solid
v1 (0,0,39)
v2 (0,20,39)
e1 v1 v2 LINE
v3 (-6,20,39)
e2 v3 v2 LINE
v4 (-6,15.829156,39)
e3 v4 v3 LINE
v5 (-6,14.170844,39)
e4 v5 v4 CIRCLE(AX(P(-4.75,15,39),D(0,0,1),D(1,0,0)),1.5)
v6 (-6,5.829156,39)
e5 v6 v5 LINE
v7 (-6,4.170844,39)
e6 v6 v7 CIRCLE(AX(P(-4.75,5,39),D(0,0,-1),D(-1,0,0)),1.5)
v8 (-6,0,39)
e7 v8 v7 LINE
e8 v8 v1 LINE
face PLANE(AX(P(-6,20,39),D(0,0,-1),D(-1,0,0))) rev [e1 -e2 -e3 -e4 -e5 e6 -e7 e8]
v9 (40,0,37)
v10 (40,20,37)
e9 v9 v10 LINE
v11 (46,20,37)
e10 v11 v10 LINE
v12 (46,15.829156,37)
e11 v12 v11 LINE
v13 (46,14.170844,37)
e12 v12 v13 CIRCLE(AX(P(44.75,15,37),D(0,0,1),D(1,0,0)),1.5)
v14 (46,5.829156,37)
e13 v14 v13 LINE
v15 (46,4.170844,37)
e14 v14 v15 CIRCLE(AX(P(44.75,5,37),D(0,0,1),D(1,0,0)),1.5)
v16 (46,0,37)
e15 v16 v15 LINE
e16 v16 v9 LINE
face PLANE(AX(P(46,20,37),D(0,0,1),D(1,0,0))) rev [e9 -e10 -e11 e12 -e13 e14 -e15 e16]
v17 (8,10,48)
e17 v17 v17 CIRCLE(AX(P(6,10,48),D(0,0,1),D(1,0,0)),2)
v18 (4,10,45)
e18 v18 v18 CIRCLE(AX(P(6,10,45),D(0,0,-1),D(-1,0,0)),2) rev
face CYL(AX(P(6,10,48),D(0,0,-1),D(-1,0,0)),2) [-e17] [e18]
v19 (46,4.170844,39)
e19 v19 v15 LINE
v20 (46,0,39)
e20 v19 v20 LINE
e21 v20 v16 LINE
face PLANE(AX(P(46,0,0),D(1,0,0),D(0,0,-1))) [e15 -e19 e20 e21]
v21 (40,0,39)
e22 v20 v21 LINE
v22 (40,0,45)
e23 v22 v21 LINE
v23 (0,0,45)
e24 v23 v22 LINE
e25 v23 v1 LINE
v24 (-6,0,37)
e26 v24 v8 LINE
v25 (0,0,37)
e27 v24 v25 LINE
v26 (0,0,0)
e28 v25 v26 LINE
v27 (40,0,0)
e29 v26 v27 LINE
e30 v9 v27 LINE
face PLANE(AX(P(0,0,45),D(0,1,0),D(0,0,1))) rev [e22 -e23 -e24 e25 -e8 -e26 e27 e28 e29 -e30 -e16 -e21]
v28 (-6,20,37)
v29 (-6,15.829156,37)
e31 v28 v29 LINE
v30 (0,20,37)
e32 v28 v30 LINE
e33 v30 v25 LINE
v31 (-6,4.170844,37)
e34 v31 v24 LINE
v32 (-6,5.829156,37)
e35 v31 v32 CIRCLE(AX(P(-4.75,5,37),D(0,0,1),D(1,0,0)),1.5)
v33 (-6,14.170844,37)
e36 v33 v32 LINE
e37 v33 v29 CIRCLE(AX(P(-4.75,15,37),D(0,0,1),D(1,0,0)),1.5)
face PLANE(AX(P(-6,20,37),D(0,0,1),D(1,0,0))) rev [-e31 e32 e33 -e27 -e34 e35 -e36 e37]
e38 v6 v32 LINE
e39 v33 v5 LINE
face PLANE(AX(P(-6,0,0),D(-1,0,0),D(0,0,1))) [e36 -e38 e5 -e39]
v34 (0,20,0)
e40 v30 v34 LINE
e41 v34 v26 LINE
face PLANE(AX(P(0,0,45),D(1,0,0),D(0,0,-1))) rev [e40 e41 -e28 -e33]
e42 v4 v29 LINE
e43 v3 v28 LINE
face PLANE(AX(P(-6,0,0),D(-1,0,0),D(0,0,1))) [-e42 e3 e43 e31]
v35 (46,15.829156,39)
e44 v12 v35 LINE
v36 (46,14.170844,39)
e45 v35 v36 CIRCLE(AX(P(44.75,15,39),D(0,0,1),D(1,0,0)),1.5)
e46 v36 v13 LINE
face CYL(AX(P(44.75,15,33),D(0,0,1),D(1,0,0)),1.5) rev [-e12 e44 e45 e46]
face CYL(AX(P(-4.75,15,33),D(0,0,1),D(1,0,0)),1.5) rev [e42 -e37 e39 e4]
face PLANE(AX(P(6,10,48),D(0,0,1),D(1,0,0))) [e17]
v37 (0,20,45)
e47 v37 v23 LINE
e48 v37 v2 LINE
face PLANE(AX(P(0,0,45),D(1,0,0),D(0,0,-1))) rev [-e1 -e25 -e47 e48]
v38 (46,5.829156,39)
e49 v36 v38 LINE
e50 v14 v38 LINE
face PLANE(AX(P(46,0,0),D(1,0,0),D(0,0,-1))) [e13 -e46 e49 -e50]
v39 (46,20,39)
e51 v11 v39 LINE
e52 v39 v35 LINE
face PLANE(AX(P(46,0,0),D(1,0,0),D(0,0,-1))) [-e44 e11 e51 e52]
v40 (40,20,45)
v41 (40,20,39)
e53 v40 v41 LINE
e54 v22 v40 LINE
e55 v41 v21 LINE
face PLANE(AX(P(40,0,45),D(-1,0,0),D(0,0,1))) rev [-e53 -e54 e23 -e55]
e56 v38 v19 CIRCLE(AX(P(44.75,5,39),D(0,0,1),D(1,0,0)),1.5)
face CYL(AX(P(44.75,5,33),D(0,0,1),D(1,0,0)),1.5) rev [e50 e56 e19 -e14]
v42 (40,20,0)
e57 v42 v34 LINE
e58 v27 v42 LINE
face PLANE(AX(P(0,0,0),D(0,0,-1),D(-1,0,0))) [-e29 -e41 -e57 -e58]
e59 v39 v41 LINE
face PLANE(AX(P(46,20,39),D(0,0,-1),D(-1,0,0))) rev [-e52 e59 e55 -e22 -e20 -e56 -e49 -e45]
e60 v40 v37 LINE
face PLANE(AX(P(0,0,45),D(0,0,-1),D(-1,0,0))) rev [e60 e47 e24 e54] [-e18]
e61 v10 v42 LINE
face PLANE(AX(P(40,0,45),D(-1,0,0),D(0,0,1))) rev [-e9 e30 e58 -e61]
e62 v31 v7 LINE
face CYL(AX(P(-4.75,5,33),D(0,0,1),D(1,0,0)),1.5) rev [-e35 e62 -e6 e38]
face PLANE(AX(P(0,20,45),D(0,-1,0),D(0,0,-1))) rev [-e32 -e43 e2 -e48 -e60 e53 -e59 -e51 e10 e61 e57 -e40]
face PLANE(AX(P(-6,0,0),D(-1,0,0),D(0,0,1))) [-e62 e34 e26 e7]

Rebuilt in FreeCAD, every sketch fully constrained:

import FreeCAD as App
import Part
import Sketcher
Q = App.Units.Quantity

doc = App.newDocument("Part")
body = doc.addObject("PartDesign::Body", "Body")

sketch1 = doc.addObject("Sketcher::SketchObject", "Sketch")
body.addObject(sketch1)
sketch1.AttachmentSupport = (doc.XY_Plane, [""])
sketch1.MapMode = "FlatFace"
sketch1.addGeometry([
    Part.LineSegment(App.Vector(0, 20, 0), App.Vector(0, 0, 0)),
    Part.LineSegment(App.Vector(0, 0, 0), App.Vector(40, 0, 0)),
    Part.LineSegment(App.Vector(40, 0, 0), App.Vector(40, 20, 0)),
    Part.LineSegment(App.Vector(40, 20, 0), App.Vector(0, 20, 0)),
], False)
sketch1.addConstraint([
    Sketcher.Constraint("Coincident", 0, 2, 1, 1),
    Sketcher.Constraint("Coincident", 1, 2, 2, 1),
    Sketcher.Constraint("Coincident", 2, 2, 3, 1),
    Sketcher.Constraint("Coincident", 3, 2, 0, 1),
    Sketcher.Constraint("Vertical", 0),
    Sketcher.Constraint("Horizontal", 1),
    Sketcher.Constraint("Vertical", 2),
    Sketcher.Constraint("Horizontal", 3),
    Sketcher.Constraint("Coincident", 0, 2, -1, 1),
    Sketcher.Constraint("DistanceX", 1, 1, 1, 2, Q("40 mm")),
    Sketcher.Constraint("DistanceY", 0, 2, 0, 1, Q("20 mm")),
])
pad1 = doc.addObject("PartDesign::Pad", "Pad")
body.addObject(pad1)
pad1.Profile = sketch1
pad1.Length = 45

sketch2 = doc.addObject("Sketcher::SketchObject", "Sketch001")
body.addObject(sketch2)
sketch2.AttachmentSupport = (doc.XY_Plane, [""])
sketch2.MapMode = "FlatFace"
sketch2.AttachmentOffset = App.Placement(App.Vector(0, 0, 45), App.Rotation())
sketch2.addGeometry(Part.Circle(App.Vector(6, 10, 0), App.Vector(0, 0, 1), 2), False)
sketch2.addConstraint([
    Sketcher.Constraint("Diameter", 0, Q("4 mm")),
    Sketcher.Constraint("DistanceX", -1, 1, 0, 3, Q("6 mm")),
    Sketcher.Constraint("DistanceY", -1, 1, 0, 3, Q("10 mm")),
])
pad2 = doc.addObject("PartDesign::Pad", "Pad001")
body.addObject(pad2)
pad2.Profile = sketch2
pad2.Length = 3

sketch3 = doc.addObject("Sketcher::SketchObject", "Sketch002")
body.addObject(sketch3)
sketch3.AttachmentSupport = (doc.YZ_Plane, [""])
sketch3.MapMode = "FlatFace"
sketch3.addGeometry([
    Part.LineSegment(App.Vector(20, 37, 0), App.Vector(0, 37, 0)),
    Part.LineSegment(App.Vector(0, 37, 0), App.Vector(0, 39, 0)),
    Part.LineSegment(App.Vector(0, 39, 0), App.Vector(20, 39, 0)),
    Part.LineSegment(App.Vector(20, 39, 0), App.Vector(20, 37, 0)),
], False)
sketch3.addConstraint([
    Sketcher.Constraint("Coincident", 0, 2, 1, 1),
    Sketcher.Constraint("Coincident", 1, 2, 2, 1),
    Sketcher.Constraint("Coincident", 2, 2, 3, 1),
    Sketcher.Constraint("Coincident", 3, 2, 0, 1),
    Sketcher.Constraint("Horizontal", 0),
    Sketcher.Constraint("Vertical", 1),
    Sketcher.Constraint("Horizontal", 2),
    Sketcher.Constraint("Vertical", 3),
    Sketcher.Constraint("PointOnObject", 0, 2, -2),
    Sketcher.Constraint("DistanceX", 0, 2, 0, 1, Q("20 mm")),
    Sketcher.Constraint("DistanceY", 1, 1, 1, 2, Q("2 mm")),
    Sketcher.Constraint("DistanceY", -1, 1, 0, 2, Q("37 mm")),
])
pad3 = doc.addObject("PartDesign::Pad", "Pad002")
body.addObject(pad3)
pad3.Profile = sketch3
pad3.Length = 6
pad3.Reversed = True

sketch4 = doc.addObject("Sketcher::SketchObject", "Sketch003")
body.addObject(sketch4)
sketch4.AttachmentSupport = (doc.YZ_Plane, [""])
sketch4.MapMode = "FlatFace"
sketch4.AttachmentOffset = App.Placement(App.Vector(0, 0, 40), App.Rotation())
sketch4.addGeometry([
    Part.LineSegment(App.Vector(20, 39, 0), App.Vector(0, 39, 0)),
    Part.LineSegment(App.Vector(0, 39, 0), App.Vector(0, 37, 0)),
    Part.LineSegment(App.Vector(0, 37, 0), App.Vector(20, 37, 0)),
    Part.LineSegment(App.Vector(20, 37, 0), App.Vector(20, 39, 0)),
], False)
sketch4.addConstraint([
    Sketcher.Constraint("Coincident", 0, 2, 1, 1),
    Sketcher.Constraint("Coincident", 1, 2, 2, 1),
    Sketcher.Constraint("Coincident", 2, 2, 3, 1),
    Sketcher.Constraint("Coincident", 3, 2, 0, 1),
    Sketcher.Constraint("Horizontal", 0),
    Sketcher.Constraint("Vertical", 1),
    Sketcher.Constraint("Horizontal", 2),
    Sketcher.Constraint("Vertical", 3),
    Sketcher.Constraint("PointOnObject", 0, 2, -2),
    Sketcher.Constraint("DistanceX", 0, 2, 0, 1, Q("20 mm")),
    Sketcher.Constraint("DistanceY", 1, 2, 1, 1, Q("2 mm")),
    Sketcher.Constraint("DistanceY", -1, 1, 0, 2, Q("39 mm")),
])
pad4 = doc.addObject("PartDesign::Pad", "Pad003")
body.addObject(pad4)
pad4.Profile = sketch4
pad4.Length = 6

sketch5 = doc.addObject("Sketcher::SketchObject", "Sketch004")
body.addObject(sketch5)
sketch5.AttachmentSupport = (doc.XY_Plane, [""])
sketch5.MapMode = "FlatFace"
sketch5.AttachmentOffset = App.Placement(App.Vector(0, 0, 39), App.Rotation())
sketch5.addGeometry([
    Part.Circle(App.Vector(-4.8, 15, 0), App.Vector(0, 0, 1), 1.5),
    Part.Circle(App.Vector(44.8, 15, 0), App.Vector(0, 0, 1), 1.5),
    Part.Circle(App.Vector(44.8, 5, 0), App.Vector(0, 0, 1), 1.5),
    Part.Circle(App.Vector(-4.8, 5, 0), App.Vector(0, 0, 1), 1.5),
], False)
sketch5.addConstraint([
    Sketcher.Constraint("Equal", 0, 1),
    Sketcher.Constraint("Equal", 1, 2),
    Sketcher.Constraint("Equal", 2, 3),
    Sketcher.Constraint("Horizontal", 0, 3, 1, 3),
    Sketcher.Constraint("Horizontal", 2, 3, 3, 3),
    Sketcher.Constraint("Vertical", 1, 3, 2, 3),
    Sketcher.Constraint("Vertical", 0, 3, 3, 3),
    Sketcher.Constraint("Diameter", 0, Q("3 mm")),
    Sketcher.Constraint("DistanceY", -1, 1, 0, 3, Q("15 mm")),
    Sketcher.Constraint("DistanceY", -1, 1, 2, 3, Q("5 mm")),
    Sketcher.Constraint("DistanceX", 0, 3, 1, 3, Q("49.5 mm")),
    Sketcher.Constraint("DistanceX", 0, 3, -1, 1, Q("4.75 mm")),
])
pocket1 = doc.addObject("PartDesign::Pocket", "Pocket")
body.addObject(pocket1)
pocket1.Profile = sketch5
pocket1.Length = 6

doc.recompute()
